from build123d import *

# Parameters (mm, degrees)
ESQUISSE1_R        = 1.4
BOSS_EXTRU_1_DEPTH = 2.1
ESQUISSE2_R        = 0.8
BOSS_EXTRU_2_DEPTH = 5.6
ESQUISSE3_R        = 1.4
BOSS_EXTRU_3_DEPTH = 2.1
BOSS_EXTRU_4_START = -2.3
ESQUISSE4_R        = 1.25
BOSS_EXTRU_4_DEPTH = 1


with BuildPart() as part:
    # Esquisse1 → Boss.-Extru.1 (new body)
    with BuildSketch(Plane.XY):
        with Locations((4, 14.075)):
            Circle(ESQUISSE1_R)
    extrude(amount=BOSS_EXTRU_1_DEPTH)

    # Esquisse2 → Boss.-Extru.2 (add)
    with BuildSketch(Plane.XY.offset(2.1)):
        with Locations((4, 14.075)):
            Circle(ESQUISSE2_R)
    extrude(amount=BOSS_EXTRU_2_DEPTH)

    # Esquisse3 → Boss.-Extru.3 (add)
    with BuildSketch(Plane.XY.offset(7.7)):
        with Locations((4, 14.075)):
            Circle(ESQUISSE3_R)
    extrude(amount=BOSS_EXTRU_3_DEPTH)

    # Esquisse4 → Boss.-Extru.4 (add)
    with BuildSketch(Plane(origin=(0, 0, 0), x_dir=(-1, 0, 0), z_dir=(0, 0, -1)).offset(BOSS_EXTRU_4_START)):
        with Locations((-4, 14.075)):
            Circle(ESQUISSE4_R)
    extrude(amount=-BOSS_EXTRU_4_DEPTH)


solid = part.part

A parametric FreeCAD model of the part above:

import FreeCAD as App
import Part
import Sketcher

doc = App.newDocument("Part")
body = doc.addObject("PartDesign::Body", "Body")

sketch1 = body.newObject("Sketcher::SketchObject", "Sketch")
sketch1.AttachmentSupport = (doc.getObject("XY_Plane"), [""])
sketch1.MapMode = "FlatFace"
sketch1.addGeometry(Part.Circle(App.Vector(4, 14.075, 0), App.Vector(0, 0, 1), 1.4), False)
sketch1.addConstraint([
    Sketcher.Constraint("Diameter", 0, 2.8),
    Sketcher.Constraint("DistanceX", -1, 1, 0, 3, 4.0),
    Sketcher.Constraint("DistanceY", -1, 1, 0, 3, 14.075),
])
pad1 = body.newObject("PartDesign::Pad", "Pad")
pad1.Profile = sketch1
pad1.Length = 2.1

sketch2 = body.newObject("Sketcher::SketchObject", "Sketch001")
sketch2.AttachmentSupport = (doc.getObject("XY_Plane"), [""])
sketch2.MapMode = "FlatFace"
sketch2.AttachmentOffset = App.Placement(App.Vector(0, 0, 2.1), App.Rotation())
sketch2.addGeometry(Part.Circle(App.Vector(4, 14.075, 0), App.Vector(0, 0, 1), 0.8), False)
sketch2.addConstraint([
    Sketcher.Constraint("Diameter", 0, 1.6),
    Sketcher.Constraint("DistanceX", -1, 1, 0, 3, 4.0),
    Sketcher.Constraint("DistanceY", -1, 1, 0, 3, 14.075),
])
pad2 = body.newObject("PartDesign::Pad", "Pad001")
pad2.Profile = sketch2
pad2.Length = 5.6

sketch3 = body.newObject("Sketcher::SketchObject", "Sketch002")
sketch3.AttachmentSupport = (doc.getObject("XY_Plane"), [""])
sketch3.MapMode = "FlatFace"
sketch3.AttachmentOffset = App.Placement(App.Vector(0, 0, 7.7), App.Rotation())
sketch3.addGeometry(Part.Circle(App.Vector(4, 14.075, 0), App.Vector(0, 0, 1), 1.4), False)
sketch3.addConstraint([
    Sketcher.Constraint("Diameter", 0, 2.8),
    Sketcher.Constraint("DistanceX", -1, 1, 0, 3, 4.0),
    Sketcher.Constraint("DistanceY", -1, 1, 0, 3, 14.075),
])
pad3 = body.newObject("PartDesign::Pad", "Pad002")
pad3.Profile = sketch3
pad3.Length = 2.1

sketch4 = body.newObject("Sketcher::SketchObject", "Sketch003")
sketch4.AttachmentSupport = (doc.getObject("XY_Plane"), [""])
sketch4.MapMode = "FlatFace"
sketch4.AttachmentOffset = App.Placement(App.Vector(0, 0, 2.3), App.Rotation())
sketch4.addGeometry(Part.Circle(App.Vector(4, 14.075, 0), App.Vector(0, 0, 1), 1.25), False)
sketch4.addConstraint([
    Sketcher.Constraint("Diameter", 0, 2.5),
    Sketcher.Constraint("DistanceX", -1, 1, 0, 3, 4.0),
    Sketcher.Constraint("DistanceY", -1, 1, 0, 3, 14.075),
])
pad4 = body.newObject("PartDesign::Pad", "Pad003")
pad4.Profile = sketch4
pad4.Length = 1

doc.recompute()
